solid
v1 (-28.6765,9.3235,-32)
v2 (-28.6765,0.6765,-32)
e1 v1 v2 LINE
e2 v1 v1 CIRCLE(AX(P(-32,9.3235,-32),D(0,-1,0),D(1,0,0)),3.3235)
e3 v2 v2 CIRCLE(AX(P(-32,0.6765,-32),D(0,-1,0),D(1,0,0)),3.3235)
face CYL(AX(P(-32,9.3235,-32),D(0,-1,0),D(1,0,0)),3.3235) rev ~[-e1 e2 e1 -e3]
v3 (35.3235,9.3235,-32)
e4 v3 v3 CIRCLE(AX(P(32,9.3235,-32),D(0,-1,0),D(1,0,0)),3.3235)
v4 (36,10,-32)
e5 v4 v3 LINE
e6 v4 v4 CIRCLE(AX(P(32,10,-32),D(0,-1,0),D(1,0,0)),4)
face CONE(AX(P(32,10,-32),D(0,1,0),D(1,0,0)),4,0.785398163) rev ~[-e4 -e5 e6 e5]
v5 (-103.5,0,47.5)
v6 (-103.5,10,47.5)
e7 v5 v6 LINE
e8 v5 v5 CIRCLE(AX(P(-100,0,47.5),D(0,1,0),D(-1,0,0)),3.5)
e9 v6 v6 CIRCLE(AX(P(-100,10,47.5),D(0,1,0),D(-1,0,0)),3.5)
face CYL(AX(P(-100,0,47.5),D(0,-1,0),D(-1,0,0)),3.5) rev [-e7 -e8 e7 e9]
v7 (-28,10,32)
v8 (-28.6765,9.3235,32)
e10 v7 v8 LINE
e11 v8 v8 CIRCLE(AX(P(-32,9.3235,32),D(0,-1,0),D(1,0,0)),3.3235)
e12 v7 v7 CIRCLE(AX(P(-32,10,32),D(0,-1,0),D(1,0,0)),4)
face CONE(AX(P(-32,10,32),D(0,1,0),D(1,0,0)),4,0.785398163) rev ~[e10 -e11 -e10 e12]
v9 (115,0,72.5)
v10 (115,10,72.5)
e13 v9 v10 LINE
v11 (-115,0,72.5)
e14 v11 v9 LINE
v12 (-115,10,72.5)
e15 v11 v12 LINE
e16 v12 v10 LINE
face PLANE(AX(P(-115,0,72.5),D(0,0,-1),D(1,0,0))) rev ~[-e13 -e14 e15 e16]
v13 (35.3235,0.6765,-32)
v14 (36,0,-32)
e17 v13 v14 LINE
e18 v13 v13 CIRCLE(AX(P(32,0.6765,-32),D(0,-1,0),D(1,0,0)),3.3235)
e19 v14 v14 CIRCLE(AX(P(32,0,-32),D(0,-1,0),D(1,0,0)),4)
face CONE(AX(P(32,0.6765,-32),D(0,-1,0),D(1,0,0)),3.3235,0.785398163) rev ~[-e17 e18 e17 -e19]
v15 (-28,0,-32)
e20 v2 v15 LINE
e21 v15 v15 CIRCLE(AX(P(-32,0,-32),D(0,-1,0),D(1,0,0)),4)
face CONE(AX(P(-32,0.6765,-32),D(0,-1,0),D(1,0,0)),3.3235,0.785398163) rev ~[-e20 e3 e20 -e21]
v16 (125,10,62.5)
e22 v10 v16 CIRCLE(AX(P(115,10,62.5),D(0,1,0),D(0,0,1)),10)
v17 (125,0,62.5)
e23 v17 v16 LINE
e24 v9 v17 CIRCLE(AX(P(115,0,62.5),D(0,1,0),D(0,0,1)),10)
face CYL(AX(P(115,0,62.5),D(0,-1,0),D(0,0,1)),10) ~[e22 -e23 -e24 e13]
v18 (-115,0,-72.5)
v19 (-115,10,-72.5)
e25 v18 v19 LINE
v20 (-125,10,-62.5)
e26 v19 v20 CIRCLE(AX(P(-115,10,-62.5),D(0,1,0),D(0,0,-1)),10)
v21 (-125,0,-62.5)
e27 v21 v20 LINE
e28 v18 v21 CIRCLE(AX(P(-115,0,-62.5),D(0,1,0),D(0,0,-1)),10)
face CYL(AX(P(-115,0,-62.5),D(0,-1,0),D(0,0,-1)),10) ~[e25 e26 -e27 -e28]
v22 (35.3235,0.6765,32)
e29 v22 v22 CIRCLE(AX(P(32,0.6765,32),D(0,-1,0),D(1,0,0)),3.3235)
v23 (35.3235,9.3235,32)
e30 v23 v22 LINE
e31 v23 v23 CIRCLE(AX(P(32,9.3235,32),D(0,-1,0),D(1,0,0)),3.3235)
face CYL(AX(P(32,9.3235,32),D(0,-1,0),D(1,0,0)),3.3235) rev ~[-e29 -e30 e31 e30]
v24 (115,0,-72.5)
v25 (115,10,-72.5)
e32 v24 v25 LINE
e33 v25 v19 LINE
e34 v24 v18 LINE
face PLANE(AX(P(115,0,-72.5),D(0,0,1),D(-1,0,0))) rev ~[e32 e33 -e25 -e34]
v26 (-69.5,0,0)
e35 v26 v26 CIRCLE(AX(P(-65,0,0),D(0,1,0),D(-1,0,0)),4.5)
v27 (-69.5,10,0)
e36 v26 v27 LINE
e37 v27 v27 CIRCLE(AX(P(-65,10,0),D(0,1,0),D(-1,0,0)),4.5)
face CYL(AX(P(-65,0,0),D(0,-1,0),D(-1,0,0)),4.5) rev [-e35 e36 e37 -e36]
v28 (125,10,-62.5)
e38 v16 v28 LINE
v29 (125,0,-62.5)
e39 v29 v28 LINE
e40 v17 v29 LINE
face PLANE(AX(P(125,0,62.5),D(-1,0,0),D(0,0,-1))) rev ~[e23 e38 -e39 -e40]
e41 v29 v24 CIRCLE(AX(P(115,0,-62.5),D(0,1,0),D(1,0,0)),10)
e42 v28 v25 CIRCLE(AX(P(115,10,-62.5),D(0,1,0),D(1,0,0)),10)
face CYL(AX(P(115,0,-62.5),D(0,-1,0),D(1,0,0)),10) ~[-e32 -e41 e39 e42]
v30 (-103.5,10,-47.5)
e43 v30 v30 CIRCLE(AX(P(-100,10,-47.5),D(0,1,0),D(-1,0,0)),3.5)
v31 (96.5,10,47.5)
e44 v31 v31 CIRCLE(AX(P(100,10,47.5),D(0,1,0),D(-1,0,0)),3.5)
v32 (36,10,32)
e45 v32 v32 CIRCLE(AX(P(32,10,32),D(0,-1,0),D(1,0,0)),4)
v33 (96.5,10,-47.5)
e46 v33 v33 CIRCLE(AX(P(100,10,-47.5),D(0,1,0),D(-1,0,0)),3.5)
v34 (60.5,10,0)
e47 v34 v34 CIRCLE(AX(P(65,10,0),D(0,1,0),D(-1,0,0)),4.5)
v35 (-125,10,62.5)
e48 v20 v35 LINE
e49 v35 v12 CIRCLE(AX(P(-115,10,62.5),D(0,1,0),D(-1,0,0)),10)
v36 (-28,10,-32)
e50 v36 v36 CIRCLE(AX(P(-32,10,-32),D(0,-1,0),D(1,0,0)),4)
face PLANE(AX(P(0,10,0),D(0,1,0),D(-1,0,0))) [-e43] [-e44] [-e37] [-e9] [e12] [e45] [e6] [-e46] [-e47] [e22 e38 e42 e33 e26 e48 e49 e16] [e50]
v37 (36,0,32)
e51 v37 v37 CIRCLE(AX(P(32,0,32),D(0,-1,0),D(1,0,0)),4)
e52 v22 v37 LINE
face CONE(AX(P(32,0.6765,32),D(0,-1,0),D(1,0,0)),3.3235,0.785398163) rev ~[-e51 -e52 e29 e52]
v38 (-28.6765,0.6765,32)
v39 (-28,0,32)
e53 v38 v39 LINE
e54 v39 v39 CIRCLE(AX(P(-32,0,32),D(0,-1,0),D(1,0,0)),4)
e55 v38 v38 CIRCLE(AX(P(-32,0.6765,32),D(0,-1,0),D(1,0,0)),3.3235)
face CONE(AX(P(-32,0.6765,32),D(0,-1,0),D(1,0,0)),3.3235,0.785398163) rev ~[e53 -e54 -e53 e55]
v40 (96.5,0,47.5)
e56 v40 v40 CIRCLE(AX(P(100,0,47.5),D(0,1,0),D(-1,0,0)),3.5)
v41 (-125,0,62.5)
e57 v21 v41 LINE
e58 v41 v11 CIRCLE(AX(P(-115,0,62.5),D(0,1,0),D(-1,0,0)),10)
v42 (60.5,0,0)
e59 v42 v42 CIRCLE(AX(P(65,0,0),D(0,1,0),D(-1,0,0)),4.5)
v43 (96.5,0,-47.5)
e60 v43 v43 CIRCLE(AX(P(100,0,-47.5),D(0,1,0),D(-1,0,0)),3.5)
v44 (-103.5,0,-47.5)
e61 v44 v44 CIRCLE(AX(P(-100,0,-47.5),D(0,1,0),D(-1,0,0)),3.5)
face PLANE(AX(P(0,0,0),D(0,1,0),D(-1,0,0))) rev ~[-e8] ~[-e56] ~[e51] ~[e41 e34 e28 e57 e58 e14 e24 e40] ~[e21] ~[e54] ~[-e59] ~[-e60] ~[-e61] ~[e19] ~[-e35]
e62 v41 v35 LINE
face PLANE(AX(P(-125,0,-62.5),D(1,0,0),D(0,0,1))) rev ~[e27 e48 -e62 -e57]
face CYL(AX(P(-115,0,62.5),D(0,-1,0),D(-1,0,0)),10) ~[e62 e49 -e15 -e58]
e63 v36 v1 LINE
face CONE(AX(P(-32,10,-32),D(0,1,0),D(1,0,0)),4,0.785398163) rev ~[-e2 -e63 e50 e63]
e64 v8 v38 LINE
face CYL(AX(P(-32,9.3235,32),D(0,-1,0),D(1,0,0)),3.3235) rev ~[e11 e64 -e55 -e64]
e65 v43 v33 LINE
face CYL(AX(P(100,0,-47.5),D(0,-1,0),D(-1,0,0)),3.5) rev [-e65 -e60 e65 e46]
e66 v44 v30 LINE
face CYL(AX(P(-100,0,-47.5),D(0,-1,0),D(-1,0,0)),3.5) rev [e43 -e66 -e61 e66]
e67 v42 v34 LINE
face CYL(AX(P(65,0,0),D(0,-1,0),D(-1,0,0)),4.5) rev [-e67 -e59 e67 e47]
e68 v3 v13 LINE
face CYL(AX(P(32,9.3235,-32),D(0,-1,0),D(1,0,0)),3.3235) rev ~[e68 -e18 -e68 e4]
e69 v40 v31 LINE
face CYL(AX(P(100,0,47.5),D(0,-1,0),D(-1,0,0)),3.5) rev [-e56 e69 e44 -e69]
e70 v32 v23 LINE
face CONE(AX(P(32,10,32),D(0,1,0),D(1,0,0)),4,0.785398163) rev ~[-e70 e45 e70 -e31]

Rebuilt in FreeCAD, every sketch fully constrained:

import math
import FreeCAD as App
import Part
import Sketcher

V = App.Vector

doc = App.newDocument("Part")
body = doc.addObject("PartDesign::Body", "Body")

# Sketch on XZ plane
sketch1 = body.newObject("Sketcher::SketchObject", "Sketch")
sketch1.AttachmentSupport = (doc.getObject("XZ_Plane"), [""])
sketch1.MapMode = "FlatFace"
sketch1.addGeometry([
    Part.LineSegment(V(-125, -62.5, 0), V(-125, 62.5, 0)),  # 0
    Part.ArcOfCircle(Part.Circle(V(-115, 62.5, 0), V(0, 0, 1), 10), math.radians(90), math.radians(180)),  # 1
    Part.LineSegment(V(-115, 72.5, 0), V(115, 72.5, 0)),  # 2
    Part.ArcOfCircle(Part.Circle(V(115, 62.5, 0), V(0, 0, 1), 10), math.radians(0), math.radians(90)),  # 3
    Part.LineSegment(V(125, 62.5, 0), V(125, -62.5, 0)),  # 4
    Part.ArcOfCircle(Part.Circle(V(115, -62.5, 0), V(0, 0, 1), 10), math.radians(-90), math.radians(0)),  # 5
    Part.LineSegment(V(115, -72.5, 0), V(-115, -72.5, 0)),  # 6
    Part.ArcOfCircle(Part.Circle(V(-115, -62.5, 0), V(0, 0, 1), 10), math.radians(180), math.radians(270)),  # 7
    Part.Circle(V(100, -47.5, 0), V(0, 0, 1), 3.5),  # 8
    Part.Circle(V(-100, -47.5, 0), V(0, 0, 1), 3.5),  # 9
    Part.Circle(V(65, 0, 0), V(0, 0, 1), 4.5),  # 10
    Part.Circle(V(100, 47.5, 0), V(0, 0, 1), 3.5),  # 11
    Part.Circle(V(-65, 0, 0), V(0, 0, 1), 4.5),  # 12
    Part.Circle(V(-100, 47.5, 0), V(0, 0, 1), 3.5),  # 13
], False)
sketch1.addConstraint([
    Sketcher.Constraint("Tangent", 0, 2, 1, 2),
    Sketcher.Constraint("Tangent", 1, 1, 2, 1),
    Sketcher.Constraint("Tangent", 2, 2, 3, 2),
    Sketcher.Constraint("Tangent", 3, 1, 4, 1),
    Sketcher.Constraint("Tangent", 4, 2, 5, 2),
    Sketcher.Constraint("Tangent", 5, 1, 6, 1),
    Sketcher.Constraint("Tangent", 6, 2, 7, 2),
    Sketcher.Constraint("Tangent", 7, 1, 0, 1),
    Sketcher.Constraint("Vertical", 0),
    Sketcher.Constraint("Horizontal", 2),
    Sketcher.Constraint("Vertical", 4),
    Sketcher.Constraint("Horizontal", 6),
    Sketcher.Constraint("Equal", 1, 3),
    Sketcher.Constraint("Equal", 3, 5),
    Sketcher.Constraint("Equal", 5, 7),
    Sketcher.Constraint("Equal", 8, 9),
    Sketcher.Constraint("Equal", 9, 11),
    Sketcher.Constraint("Equal", 10, 12),
    Sketcher.Constraint("Equal", 11, 13),
    Sketcher.Constraint("Symmetric", 1, 3, 5, 3, -1, 1),
    Sketcher.Constraint("Symmetric", 9, 3, 11, 3, -1, 1),
    Sketcher.Constraint("Symmetric", 10, 3, 12, 3, -1, 1),
    Sketcher.Constraint("Symmetric", 8, 3, 13, 3, -1, 1),
    Sketcher.Constraint("Symmetric", 8, 3, 9, 3, -2),
    Sketcher.Constraint("PointOnObject", 10, 3, -1),
    Sketcher.Constraint("Diameter", 8, 7.0),
    Sketcher.Constraint("Diameter", 10, 9.0),
    Sketcher.Constraint("Radius", 1, 10.0),
    Sketcher.Constraint("DistanceX", 2, 1, 2, 2, 230.0),
    Sketcher.Constraint("DistanceY", 0, 1, 0, 2, 125.0),
    Sketcher.Constraint("DistanceX", -1, 1, 8, 3, 100.0),
    Sketcher.Constraint("DistanceX", -1, 1, 10, 3, 65.0),
    Sketcher.Constraint("DistanceY", 5, 3, 8, 3, 15.0),
])
pad1 = body.newObject("PartDesign::Pad", "Pad")
pad1.Profile = sketch1
pad1.Length = 10
pad1.Reversed = True

# Sketch on XY plane
sketch2 = body.newObject("Sketcher::SketchObject", "Sketch001")
sketch2.AttachmentSupport = (doc.getObject("XY_Plane"), [""])
sketch2.MapMode = "FlatFace"
sketch2.AttachmentOffset = App.Placement(V(0, 0, -32), App.Rotation())
sketch2.addGeometry([
    Part.LineSegment(V(-32, 10, 0), V(-32, 0, 0)),  # 0
    Part.LineSegment(V(-32, 0, 0), V(-28, 0, 0)),  # 1
    Part.LineSegment(V(-28, 0, 0), V(-28.6765, 0.6765, 0)),  # 2
    Part.LineSegment(V(-28.6765, 0.6765, 0), V(-28.6765, 9.3235, 0)),  # 3
    Part.LineSegment(V(-28.6765, 9.3235, 0), V(-28, 10, 0)),  # 4
    Part.LineSegment(V(-28, 10, 0), V(-32, 10, 0)),  # 5
], False)
sketch2.addGeometry(Part.LineSegment(V(-32, 10, 0), V(-32, 0, 0)), True)  # axis
sketch2.addConstraint([
    Sketcher.Constraint("Coincident", 0, 2, 1, 1),
    Sketcher.Constraint("Coincident", 1, 2, 2, 1),
    Sketcher.Constraint("Coincident", 2, 2, 3, 1),
    Sketcher.Constraint("Coincident", 3, 2, 4, 1),
    Sketcher.Constraint("Coincident", 4, 2, 5, 1),
    Sketcher.Constraint("Coincident", 5, 2, 0, 1),
    Sketcher.Constraint("Vertical", 0),
    Sketcher.Constraint("Horizontal", 1),
    Sketcher.Constraint("Vertical", 3),
    Sketcher.Constraint("Horizontal", 5),
    Sketcher.Constraint("Vertical", 6),
    Sketcher.Constraint("Coincident", 6, 1, 5, 2),
    Sketcher.Constraint("PointOnObject", 0, 2, -1),
    Sketcher.Constraint("PointOnObject", 6, 2, -1),
    Sketcher.Constraint("Perpendicular", 2, 4),
    Sketcher.Constraint("Vertical", 1, 2, 4, 2),
    Sketcher.Constraint("Equal", 2, 4),
    Sketcher.Constraint("DistanceX", 1, 1, 1, 2, 4.0),
    Sketcher.Constraint("DistanceY", 0, 2, 0, 1, 10.0),
    Sketcher.Constraint("DistanceX", 0, 2, -1, 1, 32.0),
    Sketcher.Constraint("DistanceY", 3, 1, 3, 2, 8.647),
])
groove = body.newObject("PartDesign::Groove", "Groove")
groove.Profile = sketch2
groove.ReferenceAxis = (sketch2, ["Axis0"])
groove.Angle = 360

# Sketch on XY plane
sketch3 = body.newObject("Sketcher::SketchObject", "Sketch002")
sketch3.AttachmentSupport = (doc.getObject("XY_Plane"), [""])
sketch3.MapMode = "FlatFace"
sketch3.AttachmentOffset = App.Placement(V(0, 0, -32), App.Rotation())
sketch3.addGeometry([
    Part.LineSegment(V(32, 10, 0), V(32, 0, 0)),  # 0
    Part.LineSegment(V(32, 0, 0), V(36, 0, 0)),  # 1
    Part.LineSegment(V(36, 0, 0), V(35.3235, 0.6765, 0)),  # 2
    Part.LineSegment(V(35.3235, 0.6765, 0), V(35.3235, 9.3235, 0)),  # 3
    Part.LineSegment(V(35.3235, 9.3235, 0), V(36, 10, 0)),  # 4
    Part.LineSegment(V(36, 10, 0), V(32, 10, 0)),  # 5
], False)
sketch3.addGeometry(Part.LineSegment(V(32, 10, 0), V(32, 0, 0)), True)  # axis
sketch3.addConstraint([
    Sketcher.Constraint("Coincident", 0, 2, 1, 1),
    Sketcher.Constraint("Coincident", 1, 2, 2, 1),
    Sketcher.Constraint("Coincident", 2, 2, 3, 1),
    Sketcher.Constraint("Coincident", 3, 2, 4, 1),
    Sketcher.Constraint("Coincident", 4, 2, 5, 1),
    Sketcher.Constraint("Coincident", 5, 2, 0, 1),
    Sketcher.Constraint("Vertical", 0),
    Sketcher.Constraint("Horizontal", 1),
    Sketcher.Constraint("Vertical", 3),
    Sketcher.Constraint("Horizontal", 5),
    Sketcher.Constraint("Vertical", 6),
    Sketcher.Constraint("Coincident", 6, 1, 5, 2),
    Sketcher.Constraint("PointOnObject", 0, 2, -1),
    Sketcher.Constraint("PointOnObject", 6, 2, -1),
    Sketcher.Constraint("Perpendicular", 2, 4),
    Sketcher.Constraint("Vertical", 1, 2, 4, 2),
    Sketcher.Constraint("Equal", 2, 4),
    Sketcher.Constraint("DistanceX", 1, 1, 1, 2, 4.0),
    Sketcher.Constraint("DistanceY", 0, 2, 0, 1, 10.0),
    Sketcher.Constraint("DistanceX", -1, 1, 0, 2, 32.0),
    Sketcher.Constraint("DistanceY", 3, 1, 3, 2, 8.647),
])
groove2 = body.newObject("PartDesign::Groove", "Groove001")
groove2.Profile = sketch3
groove2.ReferenceAxis = (sketch3, ["Axis0"])
groove2.Angle = 360

# Sketch on XY plane
sketch4 = body.newObject("Sketcher::SketchObject", "Sketch003")
sketch4.AttachmentSupport = (doc.getObject("XY_Plane"), [""])
sketch4.MapMode = "FlatFace"
sketch4.AttachmentOffset = App.Placement(V(0, 0, 32), App.Rotation())
sketch4.addGeometry([
    Part.LineSegment(V(-32, 10, 0), V(-32, 0, 0)),  # 0
    Part.LineSegment(V(-32, 0, 0), V(-28, 0, 0)),  # 1
    Part.LineSegment(V(-28, 0, 0), V(-28.6765, 0.6765, 0)),  # 2
    Part.LineSegment(V(-28.6765, 0.6765, 0), V(-28.6765, 9.3235, 0)),  # 3
    Part.LineSegment(V(-28.6765, 9.3235, 0), V(-28, 10, 0)),  # 4
    Part.LineSegment(V(-28, 10, 0), V(-32, 10, 0)),  # 5
], False)
sketch4.addGeometry(Part.LineSegment(V(-32, 10, 0), V(-32, 0, 0)), True)  # axis
sketch4.addConstraint([
    Sketcher.Constraint("Coincident", 0, 2, 1, 1),
    Sketcher.Constraint("Coincident", 1, 2, 2, 1),
    Sketcher.Constraint("Coincident", 2, 2, 3, 1),
    Sketcher.Constraint("Coincident", 3, 2, 4, 1),
    Sketcher.Constraint("Coincident", 4, 2, 5, 1),
    Sketcher.Constraint("Coincident", 5, 2, 0, 1),
    Sketcher.Constraint("Vertical", 0),
    Sketcher.Constraint("Horizontal", 1),
    Sketcher.Constraint("Vertical", 3),
    Sketcher.Constraint("Horizontal", 5),
    Sketcher.Constraint("Vertical", 6),
    Sketcher.Constraint("Coincident", 6, 1, 5, 2),
    Sketcher.Constraint("PointOnObject", 0, 2, -1),
    Sketcher.Constraint("PointOnObject", 6, 2, -1),
    Sketcher.Constraint("Perpendicular", 2, 4),
    Sketcher.Constraint("Vertical", 1, 2, 4, 2),
    Sketcher.Constraint("Equal", 2, 4),
    Sketcher.Constraint("DistanceX", 1, 1, 1, 2, 4.0),
    Sketcher.Constraint("DistanceY", 0, 2, 0, 1, 10.0),
    Sketcher.Constraint("DistanceX", 0, 2, -1, 1, 32.0),
    Sketcher.Constraint("DistanceY", 3, 1, 3, 2, 8.647),
])
groove3 = body.newObject("PartDesign::Groove", "Groove002")
groove3.Profile = sketch4
groove3.ReferenceAxis = (sketch4, ["Axis0"])
groove3.Angle = 360

# Sketch on XY plane
sketch5 = body.newObject("Sketcher::SketchObject", "Sketch004")
sketch5.AttachmentSupport = (doc.getObject("XY_Plane"), [""])
sketch5.MapMode = "FlatFace"
sketch5.AttachmentOffset = App.Placement(V(0, 0, 32), App.Rotation())
sketch5.addGeometry([
    Part.LineSegment(V(32, 10, 0), V(32, 0, 0)),  # 0
    Part.LineSegment(V(32, 0, 0), V(36, 0, 0)),  # 1
    Part.LineSegment(V(36, 0, 0), V(35.3235, 0.6765, 0)),  # 2
    Part.LineSegment(V(35.3235, 0.6765, 0), V(35.3235, 9.3235, 0)),  # 3
    Part.LineSegment(V(35.3235, 9.3235, 0), V(36, 10, 0)),  # 4
    Part.LineSegment(V(36, 10, 0), V(32, 10, 0)),  # 5
], False)
sketch5.addGeometry(Part.LineSegment(V(32, 10, 0), V(32, 0, 0)), True)  # axis
sketch5.addConstraint([
    Sketcher.Constraint("Coincident", 0, 2, 1, 1),
    Sketcher.Constraint("Coincident", 1, 2, 2, 1),
    Sketcher.Constraint("Coincident", 2, 2, 3, 1),
    Sketcher.Constraint("Coincident", 3, 2, 4, 1),
    Sketcher.Constraint("Coincident", 4, 2, 5, 1),
    Sketcher.Constraint("Coincident", 5, 2, 0, 1),
    Sketcher.Constraint("Vertical", 0),
    Sketcher.Constraint("Horizontal", 1),
    Sketcher.Constraint("Vertical", 3),
    Sketcher.Constraint("Horizontal", 5),
    Sketcher.Constraint("Vertical", 6),
    Sketcher.Constraint("Coincident", 6, 1, 5, 2),
    Sketcher.Constraint("PointOnObject", 0, 2, -1),
    Sketcher.Constraint("PointOnObject", 6, 2, -1),
    Sketcher.Constraint("Perpendicular", 2, 4),
    Sketcher.Constraint("Vertical", 1, 2, 4, 2),
    Sketcher.Constraint("Equal", 2, 4),
    Sketcher.Constraint("DistanceX", 1, 1, 1, 2, 4.0),
    Sketcher.Constraint("DistanceY", 0, 2, 0, 1, 10.0),
    Sketcher.Constraint("DistanceX", -1, 1, 0, 2, 32.0),
    Sketcher.Constraint("DistanceY", 3, 1, 3, 2, 8.647),
])
groove4 = body.newObject("PartDesign::Groove", "Groove003")
groove4.Profile = sketch5
groove4.ReferenceAxis = (sketch5, ["Axis0"])
groove4.Angle = 360

doc.recompute()
